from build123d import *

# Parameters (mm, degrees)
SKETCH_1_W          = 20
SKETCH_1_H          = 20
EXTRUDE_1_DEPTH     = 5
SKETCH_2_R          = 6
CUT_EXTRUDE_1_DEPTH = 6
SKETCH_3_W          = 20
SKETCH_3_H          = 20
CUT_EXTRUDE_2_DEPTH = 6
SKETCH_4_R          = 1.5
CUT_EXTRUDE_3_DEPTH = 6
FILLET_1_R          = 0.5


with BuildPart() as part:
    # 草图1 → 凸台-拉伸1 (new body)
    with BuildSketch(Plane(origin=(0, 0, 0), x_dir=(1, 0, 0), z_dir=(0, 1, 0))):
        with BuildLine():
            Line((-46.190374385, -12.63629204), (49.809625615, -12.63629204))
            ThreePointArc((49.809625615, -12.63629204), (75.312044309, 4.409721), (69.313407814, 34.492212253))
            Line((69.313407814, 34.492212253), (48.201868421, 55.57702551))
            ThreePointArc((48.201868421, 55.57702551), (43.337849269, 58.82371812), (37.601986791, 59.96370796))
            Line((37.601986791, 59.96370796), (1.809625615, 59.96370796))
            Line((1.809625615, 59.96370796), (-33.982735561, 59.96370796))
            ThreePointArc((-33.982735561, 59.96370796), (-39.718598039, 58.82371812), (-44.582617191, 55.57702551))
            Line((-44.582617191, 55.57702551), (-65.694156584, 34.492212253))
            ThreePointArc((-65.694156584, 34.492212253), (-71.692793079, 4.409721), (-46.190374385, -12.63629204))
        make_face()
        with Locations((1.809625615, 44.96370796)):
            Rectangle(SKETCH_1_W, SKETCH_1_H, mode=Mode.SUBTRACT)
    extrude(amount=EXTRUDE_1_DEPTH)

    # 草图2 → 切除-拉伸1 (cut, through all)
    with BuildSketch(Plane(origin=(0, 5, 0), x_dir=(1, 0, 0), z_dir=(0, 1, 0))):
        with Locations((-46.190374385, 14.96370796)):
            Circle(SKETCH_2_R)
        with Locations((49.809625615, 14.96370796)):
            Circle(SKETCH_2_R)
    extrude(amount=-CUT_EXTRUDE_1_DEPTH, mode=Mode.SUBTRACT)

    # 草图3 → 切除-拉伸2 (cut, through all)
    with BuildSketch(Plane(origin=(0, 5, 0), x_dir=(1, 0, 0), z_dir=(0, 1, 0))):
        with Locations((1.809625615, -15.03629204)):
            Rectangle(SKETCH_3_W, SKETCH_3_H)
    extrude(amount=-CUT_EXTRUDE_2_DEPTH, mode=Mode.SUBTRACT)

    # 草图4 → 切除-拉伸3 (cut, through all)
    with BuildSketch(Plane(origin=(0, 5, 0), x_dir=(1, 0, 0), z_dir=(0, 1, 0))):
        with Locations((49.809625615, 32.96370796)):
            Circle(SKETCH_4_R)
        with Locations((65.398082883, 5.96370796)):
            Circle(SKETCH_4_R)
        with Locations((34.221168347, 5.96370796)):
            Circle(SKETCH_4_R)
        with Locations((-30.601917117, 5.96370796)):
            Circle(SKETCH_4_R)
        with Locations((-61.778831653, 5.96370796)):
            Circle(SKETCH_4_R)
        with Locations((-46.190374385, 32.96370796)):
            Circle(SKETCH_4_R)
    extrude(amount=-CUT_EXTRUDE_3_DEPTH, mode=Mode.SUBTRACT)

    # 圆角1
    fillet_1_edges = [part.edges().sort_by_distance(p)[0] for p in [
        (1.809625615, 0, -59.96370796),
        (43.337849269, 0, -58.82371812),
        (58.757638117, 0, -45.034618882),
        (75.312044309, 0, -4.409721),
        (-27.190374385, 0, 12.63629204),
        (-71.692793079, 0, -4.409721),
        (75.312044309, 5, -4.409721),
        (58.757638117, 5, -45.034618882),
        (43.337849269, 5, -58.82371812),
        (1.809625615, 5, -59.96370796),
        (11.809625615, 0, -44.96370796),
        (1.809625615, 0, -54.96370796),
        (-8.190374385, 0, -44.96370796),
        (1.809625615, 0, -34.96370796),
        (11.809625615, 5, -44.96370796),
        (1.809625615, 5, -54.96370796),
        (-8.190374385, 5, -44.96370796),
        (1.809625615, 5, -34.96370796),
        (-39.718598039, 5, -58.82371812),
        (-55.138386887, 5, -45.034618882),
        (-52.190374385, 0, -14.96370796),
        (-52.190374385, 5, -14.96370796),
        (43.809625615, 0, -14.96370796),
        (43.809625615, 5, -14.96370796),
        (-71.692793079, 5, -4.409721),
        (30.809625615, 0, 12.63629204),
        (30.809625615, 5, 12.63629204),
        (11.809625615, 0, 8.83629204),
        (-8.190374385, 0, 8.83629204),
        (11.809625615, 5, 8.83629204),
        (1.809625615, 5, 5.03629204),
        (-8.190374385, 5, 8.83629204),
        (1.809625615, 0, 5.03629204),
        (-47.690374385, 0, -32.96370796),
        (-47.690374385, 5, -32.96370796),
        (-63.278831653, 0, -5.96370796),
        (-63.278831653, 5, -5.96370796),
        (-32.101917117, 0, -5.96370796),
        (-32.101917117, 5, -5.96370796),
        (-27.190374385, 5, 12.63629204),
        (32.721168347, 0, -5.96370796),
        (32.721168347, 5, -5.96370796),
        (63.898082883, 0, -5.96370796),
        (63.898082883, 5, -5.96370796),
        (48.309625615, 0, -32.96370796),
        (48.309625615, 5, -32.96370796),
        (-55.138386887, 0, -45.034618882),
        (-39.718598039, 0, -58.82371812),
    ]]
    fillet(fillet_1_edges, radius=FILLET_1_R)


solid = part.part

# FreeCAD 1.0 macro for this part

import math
import FreeCAD as App
import Part
import Sketcher

V = App.Vector


def edges_at(feature, points):
    """Names of the edges that pass closest to the given points."""
    edges = feature.Shape.Edges
    near = lambda p: min(range(len(edges)), key=lambda i: edges[i].distToShape(Part.Vertex(*p))[0])
    return sorted({f"Edge{near(p) + 1}" for p in points})


def add_polygon(sketch, points):
    """Adds a closed chain of lines whose ends are joined by coincident constraints."""
    first, n = sketch.GeometryCount, len(points)
    for a, b in zip(points, points[1:] + points[:1]):
        sketch.addGeometry(Part.LineSegment(App.Vector(*a, 0), App.Vector(*b, 0)), False)
    for i in range(n):
        sketch.addConstraint(Sketcher.Constraint("Coincident", first + i, 2, first + (i + 1) % n, 1))

doc = App.newDocument("Part")
params = doc.addObject("Spreadsheet::Sheet", "Params")
for row, (alias, value) in enumerate([
    ("sketch1_radius", "15 mm"),
    ("sketch1_radius2", "27.6 mm"),
    ("sketch1_width", "96 mm"),
    ("sketch1_width2", "20 mm"),
    ("pad1_length", "5 mm"),
    ("sketch2_diameter", "12 mm"),
    ("sketch3_width", "20 mm"),
    ("sketch4_diameter", "3 mm"),
    ("fillet_radius", "0.5 mm"),
], start=1):
    params.set(f"A{row}", alias)
    params.set(f"B{row}", "=" + value)
    params.setAlias(f"B{row}", alias)

body = doc.addObject("PartDesign::Body", "Body")

sketch1 = doc.addObject("Sketcher::SketchObject", "Sketch")
body.addObject(sketch1)
sketch1.AttachmentSupport = (doc.XZ_Plane, [""])
sketch1.MapMode = "FlatFace"
sketch1.addGeometry(Part.LineSegment(V(-46, 13, 0), V(50, 13, 0)), False)
sketch1.addGeometry(Part.ArcOfCircle(Part.Circle(V(50, -15, 0), V(0, 0, 1), 28), math.radians(-45), math.radians(90)), False)
sketch1.addGeometry(Part.LineSegment(V(69, -34, 0), V(48, -56, 0)), False)
sketch1.addGeometry(Part.ArcOfCircle(Part.Circle(V(38, -45, 0), V(0, 0, 1), 15), math.radians(-90), math.radians(-45)), False)
sketch1.addGeometry(Part.LineSegment(V(38, -60, 0), V(-34, -60, 0)), False)
sketch1.addGeometry(Part.ArcOfCircle(Part.Circle(V(-34, -45, 0), V(0, 0, 1), 15), math.radians(-135), math.radians(-90)), False)
sketch1.addGeometry(Part.LineSegment(V(-45, -56, 0), V(-66, -34, 0)), False)
sketch1.addGeometry(Part.ArcOfCircle(Part.Circle(V(-46, -15, 0), V(0, 0, 1), 28), math.radians(90), math.radians(225)), False)
add_polygon(sketch1, [(12, -35), (-8, -35), (-8, -55), (12, -55)])
sketch1.addConstraint(Sketcher.Constraint("Tangent", 0, 2, 1, 2))
sketch1.addConstraint(Sketcher.Constraint("Tangent", 1, 1, 2, 1))
sketch1.addConstraint(Sketcher.Constraint("Tangent", 2, 2, 3, 2))
sketch1.addConstraint(Sketcher.Constraint("Tangent", 3, 1, 4, 1))
sketch1.addConstraint(Sketcher.Constraint("Tangent", 4, 2, 5, 2))
sketch1.addConstraint(Sketcher.Constraint("Tangent", 5, 1, 6, 1))
sketch1.addConstraint(Sketcher.Constraint("Tangent", 6, 2, 7, 2))
sketch1.addConstraint(Sketcher.Constraint("Tangent", 7, 1, 0, 1))
sketch1.addConstraint(Sketcher.Constraint("Horizontal", 0))
sketch1.addConstraint(Sketcher.Constraint("Horizontal", 4))
sketch1.addConstraint(Sketcher.Constraint("Horizontal", 8))
sketch1.addConstraint(Sketcher.Constraint("Vertical", 9))
sketch1.addConstraint(Sketcher.Constraint("Horizontal", 10))
sketch1.addConstraint(Sketcher.Constraint("Vertical", 11))
sketch1.addConstraint(Sketcher.Constraint("Equal", 3, 5))
sketch1.addConstraint(Sketcher.Constraint("Equal", 1, 7))
sketch1.addConstraint(Sketcher.Constraint("Horizontal", 2, 2, 5, 1))
sketch1.addConstraint(Sketcher.Constraint("Equal", 10, 9))
sketch1.addConstraint(Sketcher.Constraint("Radius", 3, 15.0))
sketch1.addConstraint(Sketcher.Constraint("Radius", 1, 27.6))
sketch1.addConstraint(Sketcher.Constraint("DistanceX", 0, 1, 0, 2, 96.0))
sketch1.addConstraint(Sketcher.Constraint("DistanceX", 8, 2, 8, 1, 20.0))
sketch1.addConstraint(Sketcher.Constraint("DistanceY", 3, 3, 1, 3, 30.0))
sketch1.addConstraint(Sketcher.Constraint("DistanceY", 5, 3, 8, 2, 10.0))
sketch1.addConstraint(Sketcher.Constraint("DistanceX", 7, 3, 8, 2, 38.0))
sketch1.addConstraint(Sketcher.Constraint("DistanceX", 4, 2, 4, 1, 71.584722))
sketch1.addConstraint(Sketcher.Constraint("DistanceX", -1, 1, 2, 2, 48.201868))
sketch1.addConstraint(Sketcher.Constraint("DistanceY", 1, 3, -1, 1, 14.963708))
sketch1.setExpression("Constraints[22]", "Params.sketch1_radius")
sketch1.setExpression("Constraints[23]", "Params.sketch1_radius2")
sketch1.setExpression("Constraints[24]", "Params.sketch1_width")
sketch1.setExpression("Constraints[25]", "Params.sketch1_width2")
pad1 = doc.addObject("PartDesign::Pad", "Pad")
body.addObject(pad1)
pad1.Profile = sketch1
pad1.setExpression("Length", "Params.pad1_length")
pad1.Reversed = True

sketch2 = doc.addObject("Sketcher::SketchObject", "Sketch001")
body.addObject(sketch2)
sketch2.AttachmentSupport = (doc.XZ_Plane, [""])
sketch2.MapMode = "FlatFace"
sketch2.AttachmentOffset = App.Placement(V(0, 0, -5), App.Rotation())
sketch2.addGeometry(Part.Circle(V(-46, -15, 0), V(0, 0, 1), 6), False)
sketch2.addGeometry(Part.Circle(V(50, -15, 0), V(0, 0, 1), 6), False)
sketch2.addConstraint(Sketcher.Constraint("Equal", 0, 1))
sketch2.addConstraint(Sketcher.Constraint("Horizontal", 0, 3, 1, 3))
sketch2.addConstraint(Sketcher.Constraint("Diameter", 0, 12.0))
sketch2.addConstraint(Sketcher.Constraint("DistanceX", 0, 3, 1, 3, 96.0))
sketch2.addConstraint(Sketcher.Constraint("DistanceX", 0, 3, -1, 1, 46.190374))
sketch2.addConstraint(Sketcher.Constraint("DistanceY", 0, 3, -1, 1, 14.963708))
sketch2.setExpression("Constraints[2]", "Params.sketch2_diameter")
pocket1 = doc.addObject("PartDesign::Pocket", "Pocket")
body.addObject(pocket1)
pocket1.Profile = sketch2
pocket1.Type = "ThroughAll"
pocket1.Reversed = True

sketch3 = doc.addObject("Sketcher::SketchObject", "Sketch002")
body.addObject(sketch3)
sketch3.AttachmentSupport = (doc.XZ_Plane, [""])
sketch3.MapMode = "FlatFace"
sketch3.AttachmentOffset = App.Placement(V(0, 0, -5), App.Rotation())
add_polygon(sketch3, [(-8, 5), (-8, 25), (12, 25), (12, 5)])
sketch3.addConstraint(Sketcher.Constraint("Vertical", 0))
sketch3.addConstraint(Sketcher.Constraint("Horizontal", 1))
sketch3.addConstraint(Sketcher.Constraint("Vertical", 2))
sketch3.addConstraint(Sketcher.Constraint("Horizontal", 3))
sketch3.addConstraint(Sketcher.Constraint("Equal", 3, 0))
sketch3.addConstraint(Sketcher.Constraint("DistanceX", 1, 1, 1, 2, 20.0))
sketch3.addConstraint(Sketcher.Constraint("DistanceX", 0, 2, -1, 1, 8.190374))
sketch3.addConstraint(Sketcher.Constraint("DistanceY", -1, 1, 0, 2, 25.036292))
sketch3.setExpression("Constraints[9]", "Params.sketch3_width")
pocket2 = doc.addObject("PartDesign::Pocket", "Pocket001")
body.addObject(pocket2)
pocket2.Profile = sketch3
pocket2.Type = "ThroughAll"
pocket2.Reversed = True

sketch4 = doc.addObject("Sketcher::SketchObject", "Sketch003")
body.addObject(sketch4)
sketch4.AttachmentSupport = (doc.XZ_Plane, [""])
sketch4.MapMode = "FlatFace"
sketch4.AttachmentOffset = App.Placement(V(0, 0, -5), App.Rotation())
sketch4.addGeometry(Part.Circle(V(49.8, -33, 0), V(0, 0, 1), 1.5), False)
sketch4.addGeometry(Part.Circle(V(65.4, -6, 0), V(0, 0, 1), 1.5), False)
sketch4.addGeometry(Part.Circle(V(34.2, -6, 0), V(0, 0, 1), 1.5), False)
sketch4.addGeometry(Part.Circle(V(-30.6, -6, 0), V(0, 0, 1), 1.5), False)
sketch4.addGeometry(Part.Circle(V(-61.8, -6, 0), V(0, 0, 1), 1.5), False)
sketch4.addGeometry(Part.Circle(V(-46.2, -33, 0), V(0, 0, 1), 1.5), False)
sketch4.addConstraint(Sketcher.Constraint("Equal", 0, 1))
sketch4.addConstraint(Sketcher.Constraint("Equal", 1, 2))
sketch4.addConstraint(Sketcher.Constraint("Equal", 2, 3))
sketch4.addConstraint(Sketcher.Constraint("Equal", 3, 4))
sketch4.addConstraint(Sketcher.Constraint("Equal", 4, 5))
sketch4.addConstraint(Sketcher.Constraint("Horizontal", 1, 3, 2, 3))
sketch4.addConstraint(Sketcher.Constraint("Horizontal", 2, 3, 3, 3))
sketch4.addConstraint(Sketcher.Constraint("Horizontal", 3, 3, 4, 3))
sketch4.addConstraint(Sketcher.Constraint("Horizontal", 0, 3, 5, 3))
sketch4.addConstraint(Sketcher.Constraint("Diameter", 0, 3.0))
sketch4.addConstraint(Sketcher.Constraint("DistanceY", 0, 3, 1, 3, 27.0))
sketch4.addConstraint(Sketcher.Constraint("DistanceX", 3, 3, 1, 3, 96.0))
sketch4.addConstraint(Sketcher.Constraint("DistanceX", 4, 3, 2, 3, 96.0))
sketch4.addConstraint(Sketcher.Constraint("DistanceX", 5, 3, 0, 3, 96.0))
sketch4.addConstraint(Sketcher.Constraint("DistanceX", -1, 1, 2, 3, 34.221168))
sketch4.addConstraint(Sketcher.Constraint("DistanceX", -1, 1, 0, 3, 49.809626))
sketch4.addConstraint(Sketcher.Constraint("DistanceY", 0, 3, -1, 1, 32.963708))
sketch4.addConstraint(Sketcher.Constraint("DistanceX", -1, 1, 1, 3, 65.398083))
sketch4.setExpression("Constraints[9]", "Params.sketch4_diameter")
pocket3 = doc.addObject("PartDesign::Pocket", "Pocket002")
body.addObject(pocket3)
pocket3.Profile = sketch4
pocket3.Type = "ThroughAll"
pocket3.Reversed = True
doc.recompute()

fillet = doc.addObject("PartDesign::Fillet", "Fillet")
body.addObject(fillet)
fillet.Base = (pocket3, edges_at(pocket3, [
    (1.81, 0, -59.964),
    (43.338, 0, -58.824),
    (58.758, 0, -45.035),
    (75.312, 0, -4.41),
    (-27.19, 0, 12.636),
    (-71.693, 0, -4.41),
    (75.312, 5, -4.41),
    (58.758, 5, -45.035),
    (43.338, 5, -58.824),
    (1.81, 5, -59.964),
    (11.81, 0, -44.964),
    (1.81, 0, -54.964),
    (-8.19, 0, -44.964),
    (1.81, 0, -34.964),
    (11.81, 5, -44.964),
    (1.81, 5, -54.964),
    (-8.19, 5, -44.964),
    (1.81, 5, -34.964),
    (-39.719, 5, -58.824),
    (-55.138, 5, -45.035),
    (-52.19, 0, -14.964),
    (-52.19, 5, -14.964),
    (43.81, 0, -14.964),
    (43.81, 5, -14.964),
    (-71.693, 5, -4.41),
    (30.81, 0, 12.636),
    (30.81, 5, 12.636),
    (11.81, 0, 8.836),
    (-8.19, 0, 8.836),
    (11.81, 5, 8.836),
    (1.81, 5, 5.036),
    (-8.19, 5, 8.836),
    (1.81, 0, 5.036),
    (-47.69, 0, -32.964),
    (-47.69, 5, -32.964),
    (-63.279, 0, -5.964),
    (-63.279, 5, -5.964),
    (-32.102, 0, -5.964),
    (-32.102, 5, -5.964),
    (-27.19, 5, 12.636),
    (32.721, 0, -5.964),
    (32.721, 5, -5.964),
    (63.898, 0, -5.964),
    (63.898, 5, -5.964),
    (48.31, 0, -32.964),
    (48.31, 5, -32.964),
    (-55.138, 0, -45.035),
    (-39.719, 0, -58.824),
]))
fillet.setExpression("Radius", "Params.fillet_radius")

doc.recompute()
